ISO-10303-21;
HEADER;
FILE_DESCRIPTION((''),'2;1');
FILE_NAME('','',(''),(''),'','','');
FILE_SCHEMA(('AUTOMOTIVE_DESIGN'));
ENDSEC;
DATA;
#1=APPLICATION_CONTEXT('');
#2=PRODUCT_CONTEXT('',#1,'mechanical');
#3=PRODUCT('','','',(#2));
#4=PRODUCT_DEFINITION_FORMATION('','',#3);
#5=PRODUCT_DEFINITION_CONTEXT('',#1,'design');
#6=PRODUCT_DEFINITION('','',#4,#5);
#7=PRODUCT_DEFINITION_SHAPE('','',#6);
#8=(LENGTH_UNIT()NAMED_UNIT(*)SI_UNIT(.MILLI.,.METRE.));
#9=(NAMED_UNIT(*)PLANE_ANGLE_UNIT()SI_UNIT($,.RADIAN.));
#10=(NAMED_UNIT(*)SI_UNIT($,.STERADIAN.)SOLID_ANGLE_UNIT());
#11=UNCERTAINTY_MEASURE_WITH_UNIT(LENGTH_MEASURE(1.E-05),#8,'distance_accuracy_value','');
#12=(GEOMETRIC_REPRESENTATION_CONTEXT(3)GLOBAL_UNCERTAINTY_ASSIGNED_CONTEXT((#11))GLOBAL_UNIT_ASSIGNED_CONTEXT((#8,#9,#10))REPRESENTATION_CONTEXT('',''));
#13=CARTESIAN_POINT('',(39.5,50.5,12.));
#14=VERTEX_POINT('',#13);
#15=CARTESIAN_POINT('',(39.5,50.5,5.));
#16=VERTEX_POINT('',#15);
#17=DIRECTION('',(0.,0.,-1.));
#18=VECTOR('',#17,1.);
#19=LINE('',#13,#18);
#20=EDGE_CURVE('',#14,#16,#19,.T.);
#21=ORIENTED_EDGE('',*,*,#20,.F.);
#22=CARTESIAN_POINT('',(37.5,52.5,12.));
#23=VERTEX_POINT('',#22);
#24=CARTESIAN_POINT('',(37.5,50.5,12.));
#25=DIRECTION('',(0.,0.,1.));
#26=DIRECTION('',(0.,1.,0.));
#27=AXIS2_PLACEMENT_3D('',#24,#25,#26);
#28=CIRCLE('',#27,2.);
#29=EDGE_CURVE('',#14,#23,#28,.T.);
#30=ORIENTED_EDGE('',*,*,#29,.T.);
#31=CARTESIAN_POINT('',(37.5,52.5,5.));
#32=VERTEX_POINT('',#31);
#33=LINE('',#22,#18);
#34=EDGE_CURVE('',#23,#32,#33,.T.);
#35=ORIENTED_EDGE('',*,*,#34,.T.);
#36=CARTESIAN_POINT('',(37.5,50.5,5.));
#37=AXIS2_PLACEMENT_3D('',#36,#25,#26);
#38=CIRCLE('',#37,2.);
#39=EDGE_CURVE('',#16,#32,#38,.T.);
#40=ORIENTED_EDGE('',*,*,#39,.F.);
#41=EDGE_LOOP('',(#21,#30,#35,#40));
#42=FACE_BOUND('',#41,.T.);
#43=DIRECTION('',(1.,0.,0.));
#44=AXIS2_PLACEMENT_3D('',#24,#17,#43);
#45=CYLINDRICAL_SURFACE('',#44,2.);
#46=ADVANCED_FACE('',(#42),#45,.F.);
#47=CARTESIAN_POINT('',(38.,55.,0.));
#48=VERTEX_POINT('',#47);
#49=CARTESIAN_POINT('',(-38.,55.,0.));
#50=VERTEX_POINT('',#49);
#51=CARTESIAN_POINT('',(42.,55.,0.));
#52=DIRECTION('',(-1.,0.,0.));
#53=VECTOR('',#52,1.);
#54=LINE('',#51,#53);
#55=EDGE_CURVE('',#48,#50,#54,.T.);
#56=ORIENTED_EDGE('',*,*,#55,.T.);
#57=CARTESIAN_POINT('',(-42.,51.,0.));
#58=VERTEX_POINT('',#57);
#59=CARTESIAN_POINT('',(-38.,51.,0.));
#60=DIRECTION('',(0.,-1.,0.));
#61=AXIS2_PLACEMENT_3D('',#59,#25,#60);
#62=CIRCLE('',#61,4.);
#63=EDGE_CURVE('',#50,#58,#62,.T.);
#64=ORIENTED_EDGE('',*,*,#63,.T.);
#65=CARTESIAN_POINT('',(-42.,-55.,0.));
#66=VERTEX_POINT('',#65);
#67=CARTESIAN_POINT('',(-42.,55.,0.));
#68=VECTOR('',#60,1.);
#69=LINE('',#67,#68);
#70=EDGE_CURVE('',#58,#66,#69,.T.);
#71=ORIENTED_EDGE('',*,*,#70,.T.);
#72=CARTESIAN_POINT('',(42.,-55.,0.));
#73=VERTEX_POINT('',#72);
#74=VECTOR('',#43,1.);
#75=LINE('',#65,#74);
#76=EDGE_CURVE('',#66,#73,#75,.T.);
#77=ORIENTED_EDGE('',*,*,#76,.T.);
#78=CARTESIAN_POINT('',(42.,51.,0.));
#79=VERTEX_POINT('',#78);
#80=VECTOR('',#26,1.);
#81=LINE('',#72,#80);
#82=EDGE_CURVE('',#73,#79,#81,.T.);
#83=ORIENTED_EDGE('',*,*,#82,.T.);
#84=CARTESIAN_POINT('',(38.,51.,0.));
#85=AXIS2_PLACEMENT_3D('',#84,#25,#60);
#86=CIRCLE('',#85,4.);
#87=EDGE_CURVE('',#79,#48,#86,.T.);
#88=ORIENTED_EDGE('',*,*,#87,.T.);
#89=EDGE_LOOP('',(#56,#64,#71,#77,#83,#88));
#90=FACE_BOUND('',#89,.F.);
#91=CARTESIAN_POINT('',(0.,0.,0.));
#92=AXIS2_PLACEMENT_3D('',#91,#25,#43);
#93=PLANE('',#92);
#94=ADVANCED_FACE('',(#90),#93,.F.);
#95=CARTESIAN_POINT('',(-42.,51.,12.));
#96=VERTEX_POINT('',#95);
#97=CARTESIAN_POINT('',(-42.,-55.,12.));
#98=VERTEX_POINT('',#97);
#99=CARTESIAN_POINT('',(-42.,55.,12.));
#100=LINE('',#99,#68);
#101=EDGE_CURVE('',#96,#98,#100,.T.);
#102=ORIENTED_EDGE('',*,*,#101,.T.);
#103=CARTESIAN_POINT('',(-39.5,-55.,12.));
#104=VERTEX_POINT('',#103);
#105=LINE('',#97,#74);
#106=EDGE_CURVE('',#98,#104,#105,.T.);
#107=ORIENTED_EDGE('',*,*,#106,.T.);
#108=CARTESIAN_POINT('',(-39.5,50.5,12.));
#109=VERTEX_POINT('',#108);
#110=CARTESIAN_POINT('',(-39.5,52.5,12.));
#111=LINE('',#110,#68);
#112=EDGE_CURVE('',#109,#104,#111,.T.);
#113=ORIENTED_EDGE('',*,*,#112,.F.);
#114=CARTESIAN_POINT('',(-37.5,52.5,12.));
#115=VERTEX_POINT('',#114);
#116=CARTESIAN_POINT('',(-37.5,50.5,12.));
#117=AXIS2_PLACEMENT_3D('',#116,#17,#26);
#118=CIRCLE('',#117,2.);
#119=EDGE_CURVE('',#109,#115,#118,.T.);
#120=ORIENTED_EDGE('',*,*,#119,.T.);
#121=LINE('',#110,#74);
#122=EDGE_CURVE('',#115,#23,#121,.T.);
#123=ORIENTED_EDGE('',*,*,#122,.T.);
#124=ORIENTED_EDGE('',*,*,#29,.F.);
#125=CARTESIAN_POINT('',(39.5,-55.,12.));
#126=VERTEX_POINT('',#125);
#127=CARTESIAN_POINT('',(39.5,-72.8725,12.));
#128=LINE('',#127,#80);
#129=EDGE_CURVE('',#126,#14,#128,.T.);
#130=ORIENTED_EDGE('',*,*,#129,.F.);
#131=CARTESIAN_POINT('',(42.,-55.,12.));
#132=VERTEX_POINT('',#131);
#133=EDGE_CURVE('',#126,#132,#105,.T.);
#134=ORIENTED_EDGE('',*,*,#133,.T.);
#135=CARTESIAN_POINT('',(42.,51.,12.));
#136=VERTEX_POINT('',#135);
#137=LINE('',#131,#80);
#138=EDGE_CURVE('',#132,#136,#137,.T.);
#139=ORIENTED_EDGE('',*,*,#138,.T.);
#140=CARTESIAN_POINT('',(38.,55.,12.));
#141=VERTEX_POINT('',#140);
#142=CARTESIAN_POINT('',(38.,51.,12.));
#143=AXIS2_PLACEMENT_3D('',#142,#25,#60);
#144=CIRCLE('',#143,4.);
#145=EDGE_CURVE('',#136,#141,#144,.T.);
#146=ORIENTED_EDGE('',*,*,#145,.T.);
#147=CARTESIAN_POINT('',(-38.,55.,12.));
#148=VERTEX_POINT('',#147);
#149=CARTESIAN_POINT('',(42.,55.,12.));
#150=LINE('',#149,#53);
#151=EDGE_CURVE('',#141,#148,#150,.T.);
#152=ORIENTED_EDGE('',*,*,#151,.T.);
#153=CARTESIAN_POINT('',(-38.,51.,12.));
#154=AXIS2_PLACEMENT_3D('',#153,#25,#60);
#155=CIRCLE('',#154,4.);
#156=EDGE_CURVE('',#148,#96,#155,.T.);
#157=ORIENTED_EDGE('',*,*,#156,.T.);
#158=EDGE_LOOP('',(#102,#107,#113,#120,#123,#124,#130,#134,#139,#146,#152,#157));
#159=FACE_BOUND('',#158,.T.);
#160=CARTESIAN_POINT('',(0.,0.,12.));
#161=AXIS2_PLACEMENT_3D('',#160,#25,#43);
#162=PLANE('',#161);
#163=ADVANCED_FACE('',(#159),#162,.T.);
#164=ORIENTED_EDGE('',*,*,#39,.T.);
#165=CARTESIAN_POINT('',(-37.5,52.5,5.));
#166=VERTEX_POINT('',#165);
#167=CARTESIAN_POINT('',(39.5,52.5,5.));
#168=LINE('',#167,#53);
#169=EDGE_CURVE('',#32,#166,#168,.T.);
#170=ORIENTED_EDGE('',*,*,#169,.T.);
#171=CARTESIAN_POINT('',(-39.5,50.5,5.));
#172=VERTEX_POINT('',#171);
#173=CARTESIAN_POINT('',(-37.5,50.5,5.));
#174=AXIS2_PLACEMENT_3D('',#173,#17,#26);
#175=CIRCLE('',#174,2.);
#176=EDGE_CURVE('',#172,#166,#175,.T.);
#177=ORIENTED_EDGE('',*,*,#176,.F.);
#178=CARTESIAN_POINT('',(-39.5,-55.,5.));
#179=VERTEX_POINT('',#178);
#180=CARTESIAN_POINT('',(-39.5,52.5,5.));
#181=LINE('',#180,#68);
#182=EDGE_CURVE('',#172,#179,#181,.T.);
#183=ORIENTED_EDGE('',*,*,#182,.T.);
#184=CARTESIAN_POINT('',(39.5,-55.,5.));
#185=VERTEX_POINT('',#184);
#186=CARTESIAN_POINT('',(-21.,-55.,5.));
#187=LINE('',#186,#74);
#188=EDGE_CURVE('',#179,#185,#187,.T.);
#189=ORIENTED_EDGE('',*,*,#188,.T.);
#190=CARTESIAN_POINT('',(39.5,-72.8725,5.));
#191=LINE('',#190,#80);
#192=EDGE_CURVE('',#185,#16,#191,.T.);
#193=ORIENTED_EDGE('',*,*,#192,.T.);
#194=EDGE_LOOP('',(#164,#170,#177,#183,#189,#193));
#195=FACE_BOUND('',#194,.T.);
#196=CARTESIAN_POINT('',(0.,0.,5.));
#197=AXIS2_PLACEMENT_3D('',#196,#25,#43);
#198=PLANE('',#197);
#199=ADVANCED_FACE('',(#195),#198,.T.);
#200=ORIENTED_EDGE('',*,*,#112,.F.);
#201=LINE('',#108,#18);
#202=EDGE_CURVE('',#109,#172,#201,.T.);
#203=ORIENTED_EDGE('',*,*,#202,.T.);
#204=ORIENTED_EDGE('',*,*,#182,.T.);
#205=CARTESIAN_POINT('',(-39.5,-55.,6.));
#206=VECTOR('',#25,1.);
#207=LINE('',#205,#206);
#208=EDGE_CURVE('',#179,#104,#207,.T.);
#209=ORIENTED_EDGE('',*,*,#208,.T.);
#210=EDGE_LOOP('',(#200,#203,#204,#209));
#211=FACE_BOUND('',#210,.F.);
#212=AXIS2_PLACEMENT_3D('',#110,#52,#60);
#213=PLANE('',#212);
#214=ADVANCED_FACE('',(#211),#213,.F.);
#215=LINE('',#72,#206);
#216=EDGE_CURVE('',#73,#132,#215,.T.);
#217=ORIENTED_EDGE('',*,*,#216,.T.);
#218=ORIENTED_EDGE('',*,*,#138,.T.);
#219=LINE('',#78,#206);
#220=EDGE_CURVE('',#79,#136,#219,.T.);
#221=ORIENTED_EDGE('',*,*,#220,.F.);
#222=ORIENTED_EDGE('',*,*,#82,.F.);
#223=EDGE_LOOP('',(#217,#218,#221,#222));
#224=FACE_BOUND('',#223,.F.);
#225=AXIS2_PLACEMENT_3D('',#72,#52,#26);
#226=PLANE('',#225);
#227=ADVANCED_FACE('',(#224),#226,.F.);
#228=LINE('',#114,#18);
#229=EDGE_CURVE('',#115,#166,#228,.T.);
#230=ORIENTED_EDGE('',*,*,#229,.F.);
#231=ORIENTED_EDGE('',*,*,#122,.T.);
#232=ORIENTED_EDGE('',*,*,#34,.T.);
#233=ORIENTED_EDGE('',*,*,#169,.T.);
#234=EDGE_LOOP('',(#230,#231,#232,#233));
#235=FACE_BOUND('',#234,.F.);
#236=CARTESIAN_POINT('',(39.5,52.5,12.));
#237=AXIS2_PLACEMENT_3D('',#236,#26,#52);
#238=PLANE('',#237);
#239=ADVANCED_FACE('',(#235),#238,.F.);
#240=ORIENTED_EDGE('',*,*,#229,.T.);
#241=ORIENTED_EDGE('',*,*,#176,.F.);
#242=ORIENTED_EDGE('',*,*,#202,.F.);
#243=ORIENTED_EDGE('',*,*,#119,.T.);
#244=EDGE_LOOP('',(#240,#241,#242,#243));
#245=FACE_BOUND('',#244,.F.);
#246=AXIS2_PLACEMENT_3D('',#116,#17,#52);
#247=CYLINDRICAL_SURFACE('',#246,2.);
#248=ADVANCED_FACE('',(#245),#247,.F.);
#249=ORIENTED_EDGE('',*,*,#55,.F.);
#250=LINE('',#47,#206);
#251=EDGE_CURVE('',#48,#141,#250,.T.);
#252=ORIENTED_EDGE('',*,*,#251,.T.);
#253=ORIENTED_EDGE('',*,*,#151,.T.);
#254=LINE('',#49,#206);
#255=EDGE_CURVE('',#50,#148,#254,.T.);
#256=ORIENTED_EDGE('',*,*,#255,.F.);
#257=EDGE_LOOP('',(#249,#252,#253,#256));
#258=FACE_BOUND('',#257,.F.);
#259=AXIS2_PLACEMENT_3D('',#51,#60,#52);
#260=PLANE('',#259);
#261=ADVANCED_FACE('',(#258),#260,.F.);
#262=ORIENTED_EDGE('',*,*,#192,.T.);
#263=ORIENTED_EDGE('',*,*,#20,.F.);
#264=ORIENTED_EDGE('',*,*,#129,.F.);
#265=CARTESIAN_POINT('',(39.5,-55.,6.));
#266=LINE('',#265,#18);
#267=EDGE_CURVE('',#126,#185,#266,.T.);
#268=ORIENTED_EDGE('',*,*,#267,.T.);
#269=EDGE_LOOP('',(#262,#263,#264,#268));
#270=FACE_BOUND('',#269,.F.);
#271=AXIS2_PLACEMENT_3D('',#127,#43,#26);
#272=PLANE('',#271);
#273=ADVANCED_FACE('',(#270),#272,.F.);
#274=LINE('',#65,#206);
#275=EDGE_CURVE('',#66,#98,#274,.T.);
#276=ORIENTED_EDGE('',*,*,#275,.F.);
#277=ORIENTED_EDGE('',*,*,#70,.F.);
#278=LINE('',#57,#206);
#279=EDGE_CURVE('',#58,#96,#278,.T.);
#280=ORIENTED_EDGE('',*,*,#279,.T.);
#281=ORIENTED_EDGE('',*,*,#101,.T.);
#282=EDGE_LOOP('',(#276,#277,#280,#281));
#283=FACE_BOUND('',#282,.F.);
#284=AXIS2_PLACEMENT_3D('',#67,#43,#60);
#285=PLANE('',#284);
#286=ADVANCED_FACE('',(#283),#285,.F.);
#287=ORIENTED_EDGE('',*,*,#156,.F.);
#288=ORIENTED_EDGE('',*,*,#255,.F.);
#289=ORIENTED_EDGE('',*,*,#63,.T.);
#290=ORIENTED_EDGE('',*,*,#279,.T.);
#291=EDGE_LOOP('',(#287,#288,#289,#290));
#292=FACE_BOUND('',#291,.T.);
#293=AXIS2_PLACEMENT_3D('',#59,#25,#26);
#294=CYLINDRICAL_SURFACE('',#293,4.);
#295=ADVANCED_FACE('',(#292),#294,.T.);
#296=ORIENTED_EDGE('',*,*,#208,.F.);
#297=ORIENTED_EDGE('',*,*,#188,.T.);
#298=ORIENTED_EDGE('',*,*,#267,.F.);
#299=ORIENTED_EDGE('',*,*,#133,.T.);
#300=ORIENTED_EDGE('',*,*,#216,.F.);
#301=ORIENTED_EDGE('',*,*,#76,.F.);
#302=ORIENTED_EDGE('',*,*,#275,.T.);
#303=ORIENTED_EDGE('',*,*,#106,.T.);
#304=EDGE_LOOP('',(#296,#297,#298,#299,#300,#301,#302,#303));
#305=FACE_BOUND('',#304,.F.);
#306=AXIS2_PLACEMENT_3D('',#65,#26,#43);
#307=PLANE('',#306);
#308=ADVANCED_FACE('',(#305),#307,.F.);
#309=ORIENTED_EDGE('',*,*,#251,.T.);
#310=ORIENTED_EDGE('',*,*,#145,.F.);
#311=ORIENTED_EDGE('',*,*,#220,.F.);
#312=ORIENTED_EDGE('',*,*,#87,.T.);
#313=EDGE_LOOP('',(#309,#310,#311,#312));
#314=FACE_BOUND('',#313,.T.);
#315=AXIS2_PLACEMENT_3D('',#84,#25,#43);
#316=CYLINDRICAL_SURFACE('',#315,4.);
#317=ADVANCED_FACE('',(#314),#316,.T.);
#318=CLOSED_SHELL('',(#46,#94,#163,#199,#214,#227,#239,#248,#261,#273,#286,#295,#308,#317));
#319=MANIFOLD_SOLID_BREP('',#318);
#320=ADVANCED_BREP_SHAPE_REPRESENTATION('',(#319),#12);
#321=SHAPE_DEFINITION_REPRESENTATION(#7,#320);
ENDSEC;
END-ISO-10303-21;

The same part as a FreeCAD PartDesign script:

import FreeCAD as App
import Part
import Sketcher
from FreeCAD import Vector


def edges_at(feature, points):
    """Names of the edges that pass closest to the given points."""
    edges = feature.Shape.Edges
    near = lambda p: min(range(len(edges)), key=lambda i: edges[i].distToShape(Part.Vertex(*p))[0])
    return sorted({f"Edge{near(p) + 1}" for p in points})

doc = App.newDocument("Part")
body = doc.addObject("PartDesign::Body", "Body")

# Sketch on XY plane
sketch1 = doc.addObject("Sketcher::SketchObject", "Sketch")
body.addObject(sketch1)
sketch1.AttachmentSupport = (doc.XY_Plane, [""])
sketch1.MapMode = "FlatFace"
sketch1.addGeometry([
    Part.LineSegment(Vector(-42, 55, 0), Vector(-42, -55, 0)),
    Part.LineSegment(Vector(-42, -55, 0), Vector(42, -55, 0)),
    Part.LineSegment(Vector(42, -55, 0), Vector(42, 55, 0)),
    Part.LineSegment(Vector(42, 55, 0), Vector(-42, 55, 0)),
], False)
sketch1.addConstraint([
    Sketcher.Constraint("Coincident", 0, 2, 1, 1),
    Sketcher.Constraint("Coincident", 1, 2, 2, 1),
    Sketcher.Constraint("Coincident", 2, 2, 3, 1),
    Sketcher.Constraint("Coincident", 3, 2, 0, 1),
    Sketcher.Constraint("Vertical", 0),
    Sketcher.Constraint("Horizontal", 1),
    Sketcher.Constraint("Vertical", 2),
    Sketcher.Constraint("Horizontal", 3),
    Sketcher.Constraint("Symmetric", 0, 2, 2, 2, -1, 1),
    Sketcher.Constraint("DistanceX", 1, 1, 1, 2, 84.0),
    Sketcher.Constraint("DistanceY", 0, 2, 0, 1, 110.0),
])
pad1 = doc.addObject("PartDesign::Pad", "Pad")
body.addObject(pad1)
pad1.Profile = sketch1
pad1.Length = 12

# Sketch on XY plane
sketch2 = doc.addObject("Sketcher::SketchObject", "Sketch001")
body.addObject(sketch2)
sketch2.AttachmentSupport = (doc.XY_Plane, [""])
sketch2.MapMode = "FlatFace"
sketch2.AttachmentOffset = App.Placement(Vector(0, 0, 12), App.Rotation())
sketch2.addGeometry([
    Part.LineSegment(Vector(40, 52, 0), Vector(-40, 52, 0)),
    Part.LineSegment(Vector(-40, 52, 0), Vector(-40, -73, 0)),
    Part.LineSegment(Vector(-40, -73, 0), Vector(40, -73, 0)),
    Part.LineSegment(Vector(40, -73, 0), Vector(40, 52, 0)),
], False)
sketch2.addConstraint([
    Sketcher.Constraint("Coincident", 0, 2, 1, 1),
    Sketcher.Constraint("Coincident", 1, 2, 2, 1),
    Sketcher.Constraint("Coincident", 2, 2, 3, 1),
    Sketcher.Constraint("Coincident", 3, 2, 0, 1),
    Sketcher.Constraint("Horizontal", 0),
    Sketcher.Constraint("Vertical", 1),
    Sketcher.Constraint("Horizontal", 2),
    Sketcher.Constraint("Vertical", 3),
    Sketcher.Constraint("DistanceX", 0, 2, 0, 1, 79.0),
    Sketcher.Constraint("DistanceX", 0, 2, -1, 1, 39.5),
    Sketcher.Constraint("DistanceY", -1, 1, 0, 2, 52.5),
    Sketcher.Constraint("DistanceY", 1, 2, 1, 1, 125.3725),
])
pocket1 = doc.addObject("PartDesign::Pocket", "Pocket")
body.addObject(pocket1)
pocket1.Profile = sketch2
pocket1.Length = 7
doc.recompute()

fillet = doc.addObject("PartDesign::Fillet", "Fillet")
body.addObject(fillet)
fillet.Base = (pocket1, edges_at(pocket1, [(-39.5, 52.5, 8.5), (39.5, 52.5, 8.5)]))
fillet.Radius = 2
doc.recompute()

fillet2 = doc.addObject("PartDesign::Fillet", "Fillet001")
body.addObject(fillet2)
fillet2.Base = (fillet, edges_at(fillet, [(-42, 55, 6), (42, 55, 6)]))
fillet2.Radius = 4

doc.recompute()
